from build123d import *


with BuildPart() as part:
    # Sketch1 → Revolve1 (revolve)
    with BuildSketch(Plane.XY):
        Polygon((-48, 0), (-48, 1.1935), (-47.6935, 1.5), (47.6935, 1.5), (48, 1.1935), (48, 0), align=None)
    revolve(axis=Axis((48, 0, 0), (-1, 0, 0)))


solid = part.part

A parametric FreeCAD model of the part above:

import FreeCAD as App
import Part
import Sketcher

doc = App.newDocument("Part")
body = doc.addObject("PartDesign::Body", "Body")

# Sketch on XY plane
sketch1 = body.newObject("Sketcher::SketchObject", "Sketch")
sketch1.AttachmentSupport = (doc.getObject("XY_Plane"), [""])
sketch1.MapMode = "FlatFace"
sketch1.addGeometry([
    Part.LineSegment(App.Vector(-48, 1.19, 0), App.Vector(-48, 0, 0)),  # 0
    Part.LineSegment(App.Vector(-48, 0, 0), App.Vector(48, 0, 0)),  # 1
    Part.LineSegment(App.Vector(48, 0, 0), App.Vector(48, 1.19, 0)),  # 2
    Part.LineSegment(App.Vector(48, 1.19, 0), App.Vector(47.69, 1.5, 0)),  # 3
    Part.LineSegment(App.Vector(47.69, 1.5, 0), App.Vector(-47.69, 1.5, 0)),  # 4
    Part.LineSegment(App.Vector(-47.69, 1.5, 0), App.Vector(-48, 1.19, 0)),  # 5
], False)
sketch1.addConstraint([
    Sketcher.Constraint("Coincident", 0, 2, 1, 1),
    Sketcher.Constraint("Coincident", 1, 2, 2, 1),
    Sketcher.Constraint("Coincident", 2, 2, 3, 1),
    Sketcher.Constraint("Coincident", 3, 2, 4, 1),
    Sketcher.Constraint("Coincident", 4, 2, 5, 1),
    Sketcher.Constraint("Coincident", 5, 2, 0, 1),
    Sketcher.Constraint("Vertical", 0),
    Sketcher.Constraint("Horizontal", 1),
    Sketcher.Constraint("Vertical", 2),
    Sketcher.Constraint("Horizontal", 4),
    Sketcher.Constraint("Symmetric", 0, 2, 1, 2, -1, 1),
    Sketcher.Constraint("Perpendicular", 3, 5),
    Sketcher.Constraint("Horizontal", 2, 2, 5, 2),
    Sketcher.Constraint("Equal", 3, 5),
    Sketcher.Constraint("DistanceX", 1, 1, 1, 2, 96.0),
    Sketcher.Constraint("DistanceY", -1, 1, 3, 2, 1.5),
    Sketcher.Constraint("DistanceX", 4, 2, 4, 1, 95.387),
])
revolution = body.newObject("PartDesign::Revolution", "Revolution")
revolution.Profile = sketch1
revolution.ReferenceAxis = (sketch1, ["H_Axis"])
revolution.Angle = 360

doc.recompute()
